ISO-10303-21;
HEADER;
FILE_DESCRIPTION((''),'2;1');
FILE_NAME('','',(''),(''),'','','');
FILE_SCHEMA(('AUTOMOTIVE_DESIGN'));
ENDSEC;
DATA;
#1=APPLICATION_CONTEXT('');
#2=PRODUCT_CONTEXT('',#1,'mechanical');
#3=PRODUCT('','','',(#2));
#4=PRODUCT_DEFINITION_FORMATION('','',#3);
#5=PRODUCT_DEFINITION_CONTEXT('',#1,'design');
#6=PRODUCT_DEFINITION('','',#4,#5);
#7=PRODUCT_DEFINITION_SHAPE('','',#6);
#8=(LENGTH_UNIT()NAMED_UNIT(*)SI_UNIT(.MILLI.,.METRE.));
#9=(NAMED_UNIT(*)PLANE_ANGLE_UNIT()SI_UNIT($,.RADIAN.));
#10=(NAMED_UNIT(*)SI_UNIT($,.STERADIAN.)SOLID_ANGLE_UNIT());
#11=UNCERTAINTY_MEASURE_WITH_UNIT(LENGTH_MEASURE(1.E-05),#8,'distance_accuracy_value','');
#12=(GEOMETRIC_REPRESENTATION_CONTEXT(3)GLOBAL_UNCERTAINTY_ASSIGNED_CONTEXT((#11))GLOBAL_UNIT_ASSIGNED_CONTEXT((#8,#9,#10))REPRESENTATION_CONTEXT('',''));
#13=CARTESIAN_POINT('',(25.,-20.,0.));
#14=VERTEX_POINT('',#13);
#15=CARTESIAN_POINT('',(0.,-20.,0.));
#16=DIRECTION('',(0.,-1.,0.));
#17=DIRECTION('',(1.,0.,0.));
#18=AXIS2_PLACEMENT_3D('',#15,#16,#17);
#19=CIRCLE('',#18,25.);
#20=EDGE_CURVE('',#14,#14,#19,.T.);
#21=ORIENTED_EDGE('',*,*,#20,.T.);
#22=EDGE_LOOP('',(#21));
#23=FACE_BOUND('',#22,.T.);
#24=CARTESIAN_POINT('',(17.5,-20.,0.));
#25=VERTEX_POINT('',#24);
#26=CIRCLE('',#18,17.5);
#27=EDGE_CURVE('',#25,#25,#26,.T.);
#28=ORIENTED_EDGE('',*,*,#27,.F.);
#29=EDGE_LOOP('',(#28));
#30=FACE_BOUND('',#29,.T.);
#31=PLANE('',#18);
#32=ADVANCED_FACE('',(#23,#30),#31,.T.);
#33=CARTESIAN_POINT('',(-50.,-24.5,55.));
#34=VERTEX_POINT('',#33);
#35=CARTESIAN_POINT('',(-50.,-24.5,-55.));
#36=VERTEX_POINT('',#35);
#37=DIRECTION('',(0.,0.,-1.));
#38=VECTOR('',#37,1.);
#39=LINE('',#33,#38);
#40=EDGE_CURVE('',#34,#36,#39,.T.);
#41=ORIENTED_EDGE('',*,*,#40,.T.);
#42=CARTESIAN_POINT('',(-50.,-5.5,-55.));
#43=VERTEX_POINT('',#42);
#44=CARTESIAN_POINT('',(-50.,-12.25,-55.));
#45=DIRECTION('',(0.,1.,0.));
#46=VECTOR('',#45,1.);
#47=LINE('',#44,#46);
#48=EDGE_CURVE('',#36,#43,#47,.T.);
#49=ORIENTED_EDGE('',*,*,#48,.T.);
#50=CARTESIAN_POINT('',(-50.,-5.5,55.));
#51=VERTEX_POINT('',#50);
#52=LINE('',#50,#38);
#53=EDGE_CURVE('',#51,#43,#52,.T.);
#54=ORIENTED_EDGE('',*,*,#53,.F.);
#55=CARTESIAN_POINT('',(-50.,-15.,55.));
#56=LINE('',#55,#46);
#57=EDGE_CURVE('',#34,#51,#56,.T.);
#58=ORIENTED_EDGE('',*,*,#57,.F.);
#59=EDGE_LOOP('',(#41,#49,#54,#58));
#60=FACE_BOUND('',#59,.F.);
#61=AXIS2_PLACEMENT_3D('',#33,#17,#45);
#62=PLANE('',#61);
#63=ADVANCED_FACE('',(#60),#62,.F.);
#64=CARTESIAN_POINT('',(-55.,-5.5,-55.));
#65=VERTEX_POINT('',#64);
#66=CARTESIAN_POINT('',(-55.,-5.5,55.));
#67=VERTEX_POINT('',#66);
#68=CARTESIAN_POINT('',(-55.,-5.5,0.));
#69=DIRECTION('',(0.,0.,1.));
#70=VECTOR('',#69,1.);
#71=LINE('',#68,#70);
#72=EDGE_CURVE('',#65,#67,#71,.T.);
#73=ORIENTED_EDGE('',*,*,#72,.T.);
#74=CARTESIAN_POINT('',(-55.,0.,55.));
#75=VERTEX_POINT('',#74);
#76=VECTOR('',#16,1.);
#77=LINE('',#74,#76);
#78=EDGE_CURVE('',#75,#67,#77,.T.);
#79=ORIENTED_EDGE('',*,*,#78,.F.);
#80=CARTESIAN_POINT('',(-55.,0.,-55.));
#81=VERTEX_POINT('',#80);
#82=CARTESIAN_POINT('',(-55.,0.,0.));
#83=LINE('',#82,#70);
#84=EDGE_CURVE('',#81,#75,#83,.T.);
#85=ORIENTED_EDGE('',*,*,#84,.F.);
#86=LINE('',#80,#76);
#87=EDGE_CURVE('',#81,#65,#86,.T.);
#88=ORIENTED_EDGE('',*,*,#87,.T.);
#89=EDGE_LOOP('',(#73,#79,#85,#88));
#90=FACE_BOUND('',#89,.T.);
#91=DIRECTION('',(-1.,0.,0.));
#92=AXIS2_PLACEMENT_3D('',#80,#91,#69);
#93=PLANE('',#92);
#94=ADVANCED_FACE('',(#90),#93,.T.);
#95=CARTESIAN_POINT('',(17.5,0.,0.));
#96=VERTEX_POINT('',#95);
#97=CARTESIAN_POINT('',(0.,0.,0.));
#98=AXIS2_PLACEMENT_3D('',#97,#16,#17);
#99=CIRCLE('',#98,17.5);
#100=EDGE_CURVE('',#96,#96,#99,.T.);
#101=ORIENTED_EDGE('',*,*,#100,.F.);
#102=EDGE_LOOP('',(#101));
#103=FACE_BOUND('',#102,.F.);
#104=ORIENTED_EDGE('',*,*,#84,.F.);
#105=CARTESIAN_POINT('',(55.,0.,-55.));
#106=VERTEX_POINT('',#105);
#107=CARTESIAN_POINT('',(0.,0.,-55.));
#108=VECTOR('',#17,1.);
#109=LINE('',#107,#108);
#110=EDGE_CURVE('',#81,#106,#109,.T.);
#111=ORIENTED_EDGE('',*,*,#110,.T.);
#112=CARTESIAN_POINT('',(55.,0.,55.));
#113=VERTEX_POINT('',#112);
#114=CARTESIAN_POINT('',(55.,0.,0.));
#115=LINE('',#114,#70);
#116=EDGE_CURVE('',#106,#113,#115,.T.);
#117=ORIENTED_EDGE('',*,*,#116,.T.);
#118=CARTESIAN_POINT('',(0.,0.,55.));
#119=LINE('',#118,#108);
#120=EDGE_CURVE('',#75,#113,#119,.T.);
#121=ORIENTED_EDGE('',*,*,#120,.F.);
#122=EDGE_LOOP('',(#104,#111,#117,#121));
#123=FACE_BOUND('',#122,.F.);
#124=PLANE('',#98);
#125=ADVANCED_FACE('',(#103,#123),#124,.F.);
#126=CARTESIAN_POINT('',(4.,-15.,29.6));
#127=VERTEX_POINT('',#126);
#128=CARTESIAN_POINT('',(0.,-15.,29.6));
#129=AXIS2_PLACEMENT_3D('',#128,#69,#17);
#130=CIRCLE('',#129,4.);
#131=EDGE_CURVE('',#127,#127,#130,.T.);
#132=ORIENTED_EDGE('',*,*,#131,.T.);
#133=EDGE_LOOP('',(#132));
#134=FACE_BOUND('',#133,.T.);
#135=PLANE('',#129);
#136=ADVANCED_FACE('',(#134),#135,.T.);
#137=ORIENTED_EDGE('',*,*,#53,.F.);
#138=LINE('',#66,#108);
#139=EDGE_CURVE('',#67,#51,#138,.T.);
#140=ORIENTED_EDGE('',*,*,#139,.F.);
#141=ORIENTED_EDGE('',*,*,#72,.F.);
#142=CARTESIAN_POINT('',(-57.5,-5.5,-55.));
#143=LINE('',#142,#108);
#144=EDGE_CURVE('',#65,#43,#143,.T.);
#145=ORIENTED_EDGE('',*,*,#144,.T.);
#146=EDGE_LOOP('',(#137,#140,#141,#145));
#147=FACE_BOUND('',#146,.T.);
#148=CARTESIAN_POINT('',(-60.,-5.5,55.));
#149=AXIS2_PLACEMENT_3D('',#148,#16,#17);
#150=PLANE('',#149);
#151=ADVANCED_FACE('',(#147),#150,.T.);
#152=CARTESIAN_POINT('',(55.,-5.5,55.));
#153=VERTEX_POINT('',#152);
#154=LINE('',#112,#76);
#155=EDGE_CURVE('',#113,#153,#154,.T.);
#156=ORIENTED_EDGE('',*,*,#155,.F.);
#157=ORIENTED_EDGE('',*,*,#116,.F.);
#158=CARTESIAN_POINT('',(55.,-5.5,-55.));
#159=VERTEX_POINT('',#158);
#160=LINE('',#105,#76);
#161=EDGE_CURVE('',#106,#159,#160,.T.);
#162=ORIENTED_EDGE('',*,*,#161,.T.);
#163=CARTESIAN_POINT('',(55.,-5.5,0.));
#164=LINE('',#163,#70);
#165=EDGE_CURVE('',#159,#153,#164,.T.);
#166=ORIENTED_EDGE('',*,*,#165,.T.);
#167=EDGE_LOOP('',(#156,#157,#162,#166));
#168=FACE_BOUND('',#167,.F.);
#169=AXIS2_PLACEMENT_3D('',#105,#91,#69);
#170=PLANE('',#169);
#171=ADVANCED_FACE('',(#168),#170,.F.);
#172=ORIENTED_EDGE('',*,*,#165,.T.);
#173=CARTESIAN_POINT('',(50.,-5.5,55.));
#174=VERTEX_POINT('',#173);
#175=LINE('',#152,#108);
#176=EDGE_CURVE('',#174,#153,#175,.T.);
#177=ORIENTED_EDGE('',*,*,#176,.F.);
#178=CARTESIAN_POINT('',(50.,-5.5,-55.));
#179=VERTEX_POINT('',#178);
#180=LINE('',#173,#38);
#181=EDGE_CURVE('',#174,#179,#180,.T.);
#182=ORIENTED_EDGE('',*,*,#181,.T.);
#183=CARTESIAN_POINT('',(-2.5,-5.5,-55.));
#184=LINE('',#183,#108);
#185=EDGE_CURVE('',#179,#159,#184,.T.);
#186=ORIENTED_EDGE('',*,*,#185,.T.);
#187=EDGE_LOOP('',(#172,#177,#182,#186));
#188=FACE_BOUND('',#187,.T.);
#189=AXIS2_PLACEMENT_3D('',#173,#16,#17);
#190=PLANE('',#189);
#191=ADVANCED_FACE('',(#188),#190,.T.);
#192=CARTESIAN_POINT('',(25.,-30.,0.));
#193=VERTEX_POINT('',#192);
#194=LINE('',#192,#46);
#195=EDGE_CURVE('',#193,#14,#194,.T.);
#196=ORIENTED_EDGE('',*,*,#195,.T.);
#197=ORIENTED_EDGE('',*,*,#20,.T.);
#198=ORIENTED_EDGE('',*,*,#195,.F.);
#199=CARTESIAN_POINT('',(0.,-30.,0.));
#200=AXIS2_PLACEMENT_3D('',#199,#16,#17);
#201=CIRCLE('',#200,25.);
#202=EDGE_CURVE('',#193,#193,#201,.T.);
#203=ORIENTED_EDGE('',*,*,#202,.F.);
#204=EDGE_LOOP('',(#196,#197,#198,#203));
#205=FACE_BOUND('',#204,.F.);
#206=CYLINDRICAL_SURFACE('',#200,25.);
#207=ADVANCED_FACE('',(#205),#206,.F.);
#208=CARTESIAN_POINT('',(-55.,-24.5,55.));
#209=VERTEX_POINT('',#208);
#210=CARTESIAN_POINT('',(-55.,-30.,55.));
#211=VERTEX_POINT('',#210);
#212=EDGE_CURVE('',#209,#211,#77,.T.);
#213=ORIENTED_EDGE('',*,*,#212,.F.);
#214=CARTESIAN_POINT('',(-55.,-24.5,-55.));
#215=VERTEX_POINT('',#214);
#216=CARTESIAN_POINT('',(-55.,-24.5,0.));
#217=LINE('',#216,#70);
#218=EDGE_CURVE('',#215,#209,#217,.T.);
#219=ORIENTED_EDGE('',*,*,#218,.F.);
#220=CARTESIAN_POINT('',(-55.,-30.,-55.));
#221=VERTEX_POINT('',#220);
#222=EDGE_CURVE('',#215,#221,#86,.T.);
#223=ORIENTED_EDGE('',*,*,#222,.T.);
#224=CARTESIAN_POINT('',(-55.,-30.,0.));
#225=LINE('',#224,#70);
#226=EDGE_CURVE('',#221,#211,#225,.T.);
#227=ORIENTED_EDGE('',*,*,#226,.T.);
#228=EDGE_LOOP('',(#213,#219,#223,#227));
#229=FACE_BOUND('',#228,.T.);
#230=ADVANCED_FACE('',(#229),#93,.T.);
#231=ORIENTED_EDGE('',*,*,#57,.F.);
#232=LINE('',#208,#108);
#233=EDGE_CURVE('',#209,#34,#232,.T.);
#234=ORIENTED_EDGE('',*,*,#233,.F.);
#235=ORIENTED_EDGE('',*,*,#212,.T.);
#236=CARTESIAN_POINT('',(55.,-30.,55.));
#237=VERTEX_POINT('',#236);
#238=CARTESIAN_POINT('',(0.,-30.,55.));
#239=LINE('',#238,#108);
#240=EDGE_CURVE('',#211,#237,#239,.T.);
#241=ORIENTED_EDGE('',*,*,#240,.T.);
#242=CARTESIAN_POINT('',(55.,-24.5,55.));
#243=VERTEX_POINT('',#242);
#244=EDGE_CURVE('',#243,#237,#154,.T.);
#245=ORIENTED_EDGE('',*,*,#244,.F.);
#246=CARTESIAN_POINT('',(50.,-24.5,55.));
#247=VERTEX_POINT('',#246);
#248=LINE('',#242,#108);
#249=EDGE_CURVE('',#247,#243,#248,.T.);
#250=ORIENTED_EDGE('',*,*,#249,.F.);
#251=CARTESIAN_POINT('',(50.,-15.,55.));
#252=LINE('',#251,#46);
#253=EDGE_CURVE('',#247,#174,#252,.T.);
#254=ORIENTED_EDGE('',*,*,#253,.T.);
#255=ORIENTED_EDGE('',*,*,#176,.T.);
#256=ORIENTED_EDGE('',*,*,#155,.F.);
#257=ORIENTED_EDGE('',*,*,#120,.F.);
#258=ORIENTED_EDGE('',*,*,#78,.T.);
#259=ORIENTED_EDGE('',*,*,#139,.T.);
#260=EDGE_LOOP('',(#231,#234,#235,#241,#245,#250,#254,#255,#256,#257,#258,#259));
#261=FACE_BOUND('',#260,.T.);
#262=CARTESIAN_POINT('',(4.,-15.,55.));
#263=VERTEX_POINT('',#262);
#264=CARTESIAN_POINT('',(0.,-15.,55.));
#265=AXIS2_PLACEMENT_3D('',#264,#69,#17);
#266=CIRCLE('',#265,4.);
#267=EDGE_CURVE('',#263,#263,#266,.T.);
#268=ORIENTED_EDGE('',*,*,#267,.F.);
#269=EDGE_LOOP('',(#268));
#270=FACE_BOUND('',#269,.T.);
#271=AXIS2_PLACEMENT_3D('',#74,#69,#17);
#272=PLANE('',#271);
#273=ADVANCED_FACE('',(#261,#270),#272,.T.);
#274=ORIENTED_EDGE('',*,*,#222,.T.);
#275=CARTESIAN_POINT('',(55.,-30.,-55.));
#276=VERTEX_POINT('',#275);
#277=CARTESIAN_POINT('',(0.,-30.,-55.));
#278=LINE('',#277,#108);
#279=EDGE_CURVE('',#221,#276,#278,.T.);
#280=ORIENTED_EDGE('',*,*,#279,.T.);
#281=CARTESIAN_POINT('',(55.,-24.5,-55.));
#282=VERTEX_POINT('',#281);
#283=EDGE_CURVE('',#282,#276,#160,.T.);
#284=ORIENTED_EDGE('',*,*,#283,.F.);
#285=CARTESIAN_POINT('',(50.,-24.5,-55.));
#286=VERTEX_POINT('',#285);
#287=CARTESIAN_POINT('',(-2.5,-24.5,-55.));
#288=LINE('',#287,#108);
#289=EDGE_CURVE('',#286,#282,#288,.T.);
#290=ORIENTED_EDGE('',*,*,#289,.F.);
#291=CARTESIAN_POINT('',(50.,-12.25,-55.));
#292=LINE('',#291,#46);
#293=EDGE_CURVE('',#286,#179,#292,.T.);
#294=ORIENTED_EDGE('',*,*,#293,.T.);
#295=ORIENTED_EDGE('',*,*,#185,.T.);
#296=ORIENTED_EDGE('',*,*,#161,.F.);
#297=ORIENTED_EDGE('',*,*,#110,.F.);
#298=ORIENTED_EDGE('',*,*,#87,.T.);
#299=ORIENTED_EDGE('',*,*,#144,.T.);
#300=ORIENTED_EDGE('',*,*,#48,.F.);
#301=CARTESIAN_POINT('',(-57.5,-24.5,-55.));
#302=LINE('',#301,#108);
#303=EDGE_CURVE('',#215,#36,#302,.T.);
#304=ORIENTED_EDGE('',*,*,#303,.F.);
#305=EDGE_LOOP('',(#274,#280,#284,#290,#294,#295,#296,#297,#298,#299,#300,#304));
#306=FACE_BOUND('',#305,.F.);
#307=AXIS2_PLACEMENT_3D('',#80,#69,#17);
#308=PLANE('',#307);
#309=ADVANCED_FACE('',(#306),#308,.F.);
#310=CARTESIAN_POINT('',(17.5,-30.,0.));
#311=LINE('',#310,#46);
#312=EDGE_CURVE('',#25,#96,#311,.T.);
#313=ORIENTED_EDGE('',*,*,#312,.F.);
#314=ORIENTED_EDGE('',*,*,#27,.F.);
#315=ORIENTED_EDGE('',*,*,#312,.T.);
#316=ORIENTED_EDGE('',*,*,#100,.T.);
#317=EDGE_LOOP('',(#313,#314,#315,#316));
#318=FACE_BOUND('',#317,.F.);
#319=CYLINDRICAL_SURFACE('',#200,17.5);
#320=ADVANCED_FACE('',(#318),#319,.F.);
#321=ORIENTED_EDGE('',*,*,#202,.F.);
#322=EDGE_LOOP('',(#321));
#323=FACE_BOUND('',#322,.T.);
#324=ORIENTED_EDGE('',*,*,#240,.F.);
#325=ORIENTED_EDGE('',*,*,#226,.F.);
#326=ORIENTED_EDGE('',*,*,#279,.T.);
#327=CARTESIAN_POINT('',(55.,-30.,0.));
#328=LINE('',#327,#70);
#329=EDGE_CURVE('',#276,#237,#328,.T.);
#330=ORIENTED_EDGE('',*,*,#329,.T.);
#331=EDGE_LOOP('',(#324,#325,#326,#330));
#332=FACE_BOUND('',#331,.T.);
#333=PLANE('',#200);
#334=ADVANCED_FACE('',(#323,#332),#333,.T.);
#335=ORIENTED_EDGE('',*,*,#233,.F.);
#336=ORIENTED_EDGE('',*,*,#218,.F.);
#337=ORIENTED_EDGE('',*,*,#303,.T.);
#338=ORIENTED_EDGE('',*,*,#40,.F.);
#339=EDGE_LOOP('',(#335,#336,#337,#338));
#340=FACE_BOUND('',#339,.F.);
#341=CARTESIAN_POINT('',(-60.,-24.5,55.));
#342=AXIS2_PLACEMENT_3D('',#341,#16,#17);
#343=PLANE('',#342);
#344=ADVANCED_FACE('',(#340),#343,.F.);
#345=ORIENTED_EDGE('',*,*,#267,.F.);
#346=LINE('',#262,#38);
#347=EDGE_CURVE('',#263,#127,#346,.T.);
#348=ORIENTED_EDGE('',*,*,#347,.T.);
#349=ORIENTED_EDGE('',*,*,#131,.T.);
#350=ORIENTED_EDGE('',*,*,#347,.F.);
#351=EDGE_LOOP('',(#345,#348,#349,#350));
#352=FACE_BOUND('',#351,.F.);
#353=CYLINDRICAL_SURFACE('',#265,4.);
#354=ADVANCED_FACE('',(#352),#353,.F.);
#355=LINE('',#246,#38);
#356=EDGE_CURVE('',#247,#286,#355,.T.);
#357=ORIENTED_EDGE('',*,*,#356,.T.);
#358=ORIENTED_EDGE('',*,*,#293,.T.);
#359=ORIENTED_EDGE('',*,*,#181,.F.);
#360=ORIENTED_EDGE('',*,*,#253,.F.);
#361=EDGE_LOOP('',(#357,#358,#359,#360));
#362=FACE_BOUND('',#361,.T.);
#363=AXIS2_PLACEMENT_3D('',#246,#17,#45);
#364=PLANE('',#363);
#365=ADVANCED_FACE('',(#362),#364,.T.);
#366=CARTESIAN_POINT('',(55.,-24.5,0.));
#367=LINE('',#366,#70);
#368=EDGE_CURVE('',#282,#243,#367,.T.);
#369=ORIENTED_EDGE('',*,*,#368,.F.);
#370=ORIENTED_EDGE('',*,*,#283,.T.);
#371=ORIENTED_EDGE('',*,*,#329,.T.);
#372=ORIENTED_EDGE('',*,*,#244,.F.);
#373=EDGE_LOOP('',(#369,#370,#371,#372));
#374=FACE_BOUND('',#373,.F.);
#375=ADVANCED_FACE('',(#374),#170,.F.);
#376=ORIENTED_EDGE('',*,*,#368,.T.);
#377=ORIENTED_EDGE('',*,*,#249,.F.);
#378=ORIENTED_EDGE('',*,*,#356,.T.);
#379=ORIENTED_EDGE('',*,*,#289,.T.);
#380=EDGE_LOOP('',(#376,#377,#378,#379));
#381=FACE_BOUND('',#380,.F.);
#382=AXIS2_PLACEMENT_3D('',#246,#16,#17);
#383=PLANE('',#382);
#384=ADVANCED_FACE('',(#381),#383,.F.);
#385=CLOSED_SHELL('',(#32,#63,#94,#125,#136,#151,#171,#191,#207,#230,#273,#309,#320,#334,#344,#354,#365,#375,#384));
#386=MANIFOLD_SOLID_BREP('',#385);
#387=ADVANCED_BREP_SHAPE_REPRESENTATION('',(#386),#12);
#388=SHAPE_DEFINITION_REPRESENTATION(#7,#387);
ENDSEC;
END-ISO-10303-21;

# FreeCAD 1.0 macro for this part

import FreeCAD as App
import Part
import Sketcher
from FreeCAD import Vector
Q = App.Units.Quantity


def add_polygon(sketch, points):
    """Adds a closed chain of lines whose ends are joined by coincident constraints."""
    first, n = sketch.GeometryCount, len(points)
    for a, b in zip(points, points[1:] + points[:1]):
        sketch.addGeometry(Part.LineSegment(App.Vector(*a, 0), App.Vector(*b, 0)), False)
    for i in range(n):
        sketch.addConstraint(Sketcher.Constraint("Coincident", first + i, 2, first + (i + 1) % n, 1))

doc = App.newDocument("Part")
params = doc.addObject("Spreadsheet::Sheet", "Params")
for row, (alias, value) in enumerate([
    ("sketch1_width", "110 mm"),
    ("pad1_length", "30 mm"),
    ("sketch2_diameter", "50 mm"),
    ("sketch2_diameter2", "35 mm"),
    ("pocket1_length", "10 mm"),
    ("sketch3_diameter", "35 mm"),
    ("sketch4_width", "10 mm"),
    ("sketch4_height", "19 mm"),
    ("sketch5_diameter", "8 mm"),
    ("pocket4_length", "25.4 mm"),
], start=1):
    params.set(f"A{row}", alias)
    params.set(f"B{row}", "=" + value)
    params.setAlias(f"B{row}", alias)

body = doc.addObject("PartDesign::Body", "Body")

sketch1 = body.newObject("Sketcher::SketchObject", "Sketch")
sketch1.AttachmentSupport = (doc.getObject("XZ_Plane"), [""])
sketch1.MapMode = "FlatFace"
add_polygon(sketch1, [(-55, 55), (-55, -55), (55, -55), (55, 55)])
sketch1.addConstraint([
    Sketcher.Constraint("Vertical", 0),
    Sketcher.Constraint("Horizontal", 1),
    Sketcher.Constraint("Vertical", 2),
    Sketcher.Constraint("Horizontal", 3),
    Sketcher.Constraint("Symmetric", 0, 2, 2, 2, -1, 1),
    Sketcher.Constraint("Equal", 3, 0),
    Sketcher.Constraint("DistanceX", 1, 1, 1, 2, Q("110 mm")),
])
sketch1.setExpression("Constraints[10]", "Params.sketch1_width")
pad1 = body.newObject("PartDesign::Pad", "Pad")
pad1.Profile = sketch1
pad1.setExpression("Length", "Params.pad1_length")

sketch2 = body.newObject("Sketcher::SketchObject", "Sketch001")
sketch2.AttachmentSupport = (doc.getObject("XZ_Plane"), [""])
sketch2.MapMode = "FlatFace"
sketch2.AttachmentOffset = App.Placement(Vector(0, 0, 30), App.Rotation())
sketch2.addGeometry([
    Part.Circle(Vector(0, 0, 0), Vector(0, 0, 1), 25),
    Part.Circle(Vector(0, 0, 0), Vector(0, 0, 1), 18),
], False)
sketch2.addConstraint([
    Sketcher.Constraint("Coincident", 0, 3, -1, 1),
    Sketcher.Constraint("Coincident", 1, 3, -1, 1),
    Sketcher.Constraint("Diameter", 0, Q("50 mm")),
    Sketcher.Constraint("Diameter", 1, Q("35 mm")),
])
sketch2.setExpression("Constraints[2]", "Params.sketch2_diameter")
sketch2.setExpression("Constraints[3]", "Params.sketch2_diameter2")
pocket1 = body.newObject("PartDesign::Pocket", "Pocket")
pocket1.Profile = sketch2
pocket1.setExpression("Length", "Params.pocket1_length")

sketch3 = body.newObject("Sketcher::SketchObject", "Sketch002")
sketch3.AttachmentSupport = (doc.getObject("XZ_Plane"), [""])
sketch3.MapMode = "FlatFace"
sketch3.AttachmentOffset = App.Placement(Vector(0, 0, 30), App.Rotation())
sketch3.addGeometry(Part.Circle(Vector(0, 0, 0), Vector(0, 0, 1), 18), False)
sketch3.addConstraint([
    Sketcher.Constraint("Coincident", 0, 3, -1, 1),
    Sketcher.Constraint("Diameter", 0, Q("35 mm")),
])
sketch3.setExpression("Constraints[1]", "Params.sketch3_diameter")
pocket2 = body.newObject("PartDesign::Pocket", "Pocket001")
pocket2.Profile = sketch3
pocket2.Type = "ThroughAll"

sketch4 = body.newObject("Sketcher::SketchObject", "Sketch003")
sketch4.AttachmentSupport = (doc.getObject("XY_Plane"), [""])
sketch4.MapMode = "FlatFace"
sketch4.AttachmentOffset = App.Placement(Vector(0, 0, 55), App.Rotation())
add_polygon(sketch4, [(-60, -6), (-60, -24), (-50, -24), (-50, -6)])
add_polygon(sketch4, [(50, -6), (50, -24), (60, -24), (60, -6)])
sketch4.addConstraint([
    Sketcher.Constraint("Vertical", 0),
    Sketcher.Constraint("Horizontal", 1),
    Sketcher.Constraint("Vertical", 2),
    Sketcher.Constraint("Horizontal", 3),
    Sketcher.Constraint("Vertical", 4),
    Sketcher.Constraint("Horizontal", 5),
    Sketcher.Constraint("Vertical", 6),
    Sketcher.Constraint("Horizontal", 7),
    Sketcher.Constraint("Symmetric", 1, 2, 4, 2, -2),
    Sketcher.Constraint("Symmetric", 3, 2, 6, 2, -2),
    Sketcher.Constraint("DistanceX", 1, 1, 1, 2, Q("10 mm")),
    Sketcher.Constraint("DistanceY", 0, 2, 0, 1, Q("19 mm")),
    Sketcher.Constraint("DistanceX", 0, 2, -1, 1, Q("60 mm")),
    Sketcher.Constraint("DistanceY", 0, 2, -1, 1, Q("24.5 mm")),
])
sketch4.setExpression("Constraints[18]", "Params.sketch4_width")
sketch4.setExpression("Constraints[19]", "Params.sketch4_height")
pocket3 = body.newObject("PartDesign::Pocket", "Pocket002")
pocket3.Profile = sketch4
pocket3.Type = "ThroughAll"

sketch5 = body.newObject("Sketcher::SketchObject", "Sketch004")
sketch5.AttachmentSupport = (doc.getObject("XY_Plane"), [""])
sketch5.MapMode = "FlatFace"
sketch5.AttachmentOffset = App.Placement(Vector(0, 0, 55), App.Rotation())
sketch5.addGeometry(Part.Circle(Vector(0, -15, 0), Vector(0, 0, 1), 4), False)
sketch5.addConstraint([
    Sketcher.Constraint("PointOnObject", 0, 3, -2),
    Sketcher.Constraint("Diameter", 0, Q("8 mm")),
    Sketcher.Constraint("DistanceY", 0, 3, -1, 1, Q("15 mm")),
])
sketch5.setExpression("Constraints[1]", "Params.sketch5_diameter")
pocket4 = body.newObject("PartDesign::Pocket", "Pocket003")
pocket4.Profile = sketch5
pocket4.setExpression("Length", "Params.pocket4_length")

doc.recompute()
